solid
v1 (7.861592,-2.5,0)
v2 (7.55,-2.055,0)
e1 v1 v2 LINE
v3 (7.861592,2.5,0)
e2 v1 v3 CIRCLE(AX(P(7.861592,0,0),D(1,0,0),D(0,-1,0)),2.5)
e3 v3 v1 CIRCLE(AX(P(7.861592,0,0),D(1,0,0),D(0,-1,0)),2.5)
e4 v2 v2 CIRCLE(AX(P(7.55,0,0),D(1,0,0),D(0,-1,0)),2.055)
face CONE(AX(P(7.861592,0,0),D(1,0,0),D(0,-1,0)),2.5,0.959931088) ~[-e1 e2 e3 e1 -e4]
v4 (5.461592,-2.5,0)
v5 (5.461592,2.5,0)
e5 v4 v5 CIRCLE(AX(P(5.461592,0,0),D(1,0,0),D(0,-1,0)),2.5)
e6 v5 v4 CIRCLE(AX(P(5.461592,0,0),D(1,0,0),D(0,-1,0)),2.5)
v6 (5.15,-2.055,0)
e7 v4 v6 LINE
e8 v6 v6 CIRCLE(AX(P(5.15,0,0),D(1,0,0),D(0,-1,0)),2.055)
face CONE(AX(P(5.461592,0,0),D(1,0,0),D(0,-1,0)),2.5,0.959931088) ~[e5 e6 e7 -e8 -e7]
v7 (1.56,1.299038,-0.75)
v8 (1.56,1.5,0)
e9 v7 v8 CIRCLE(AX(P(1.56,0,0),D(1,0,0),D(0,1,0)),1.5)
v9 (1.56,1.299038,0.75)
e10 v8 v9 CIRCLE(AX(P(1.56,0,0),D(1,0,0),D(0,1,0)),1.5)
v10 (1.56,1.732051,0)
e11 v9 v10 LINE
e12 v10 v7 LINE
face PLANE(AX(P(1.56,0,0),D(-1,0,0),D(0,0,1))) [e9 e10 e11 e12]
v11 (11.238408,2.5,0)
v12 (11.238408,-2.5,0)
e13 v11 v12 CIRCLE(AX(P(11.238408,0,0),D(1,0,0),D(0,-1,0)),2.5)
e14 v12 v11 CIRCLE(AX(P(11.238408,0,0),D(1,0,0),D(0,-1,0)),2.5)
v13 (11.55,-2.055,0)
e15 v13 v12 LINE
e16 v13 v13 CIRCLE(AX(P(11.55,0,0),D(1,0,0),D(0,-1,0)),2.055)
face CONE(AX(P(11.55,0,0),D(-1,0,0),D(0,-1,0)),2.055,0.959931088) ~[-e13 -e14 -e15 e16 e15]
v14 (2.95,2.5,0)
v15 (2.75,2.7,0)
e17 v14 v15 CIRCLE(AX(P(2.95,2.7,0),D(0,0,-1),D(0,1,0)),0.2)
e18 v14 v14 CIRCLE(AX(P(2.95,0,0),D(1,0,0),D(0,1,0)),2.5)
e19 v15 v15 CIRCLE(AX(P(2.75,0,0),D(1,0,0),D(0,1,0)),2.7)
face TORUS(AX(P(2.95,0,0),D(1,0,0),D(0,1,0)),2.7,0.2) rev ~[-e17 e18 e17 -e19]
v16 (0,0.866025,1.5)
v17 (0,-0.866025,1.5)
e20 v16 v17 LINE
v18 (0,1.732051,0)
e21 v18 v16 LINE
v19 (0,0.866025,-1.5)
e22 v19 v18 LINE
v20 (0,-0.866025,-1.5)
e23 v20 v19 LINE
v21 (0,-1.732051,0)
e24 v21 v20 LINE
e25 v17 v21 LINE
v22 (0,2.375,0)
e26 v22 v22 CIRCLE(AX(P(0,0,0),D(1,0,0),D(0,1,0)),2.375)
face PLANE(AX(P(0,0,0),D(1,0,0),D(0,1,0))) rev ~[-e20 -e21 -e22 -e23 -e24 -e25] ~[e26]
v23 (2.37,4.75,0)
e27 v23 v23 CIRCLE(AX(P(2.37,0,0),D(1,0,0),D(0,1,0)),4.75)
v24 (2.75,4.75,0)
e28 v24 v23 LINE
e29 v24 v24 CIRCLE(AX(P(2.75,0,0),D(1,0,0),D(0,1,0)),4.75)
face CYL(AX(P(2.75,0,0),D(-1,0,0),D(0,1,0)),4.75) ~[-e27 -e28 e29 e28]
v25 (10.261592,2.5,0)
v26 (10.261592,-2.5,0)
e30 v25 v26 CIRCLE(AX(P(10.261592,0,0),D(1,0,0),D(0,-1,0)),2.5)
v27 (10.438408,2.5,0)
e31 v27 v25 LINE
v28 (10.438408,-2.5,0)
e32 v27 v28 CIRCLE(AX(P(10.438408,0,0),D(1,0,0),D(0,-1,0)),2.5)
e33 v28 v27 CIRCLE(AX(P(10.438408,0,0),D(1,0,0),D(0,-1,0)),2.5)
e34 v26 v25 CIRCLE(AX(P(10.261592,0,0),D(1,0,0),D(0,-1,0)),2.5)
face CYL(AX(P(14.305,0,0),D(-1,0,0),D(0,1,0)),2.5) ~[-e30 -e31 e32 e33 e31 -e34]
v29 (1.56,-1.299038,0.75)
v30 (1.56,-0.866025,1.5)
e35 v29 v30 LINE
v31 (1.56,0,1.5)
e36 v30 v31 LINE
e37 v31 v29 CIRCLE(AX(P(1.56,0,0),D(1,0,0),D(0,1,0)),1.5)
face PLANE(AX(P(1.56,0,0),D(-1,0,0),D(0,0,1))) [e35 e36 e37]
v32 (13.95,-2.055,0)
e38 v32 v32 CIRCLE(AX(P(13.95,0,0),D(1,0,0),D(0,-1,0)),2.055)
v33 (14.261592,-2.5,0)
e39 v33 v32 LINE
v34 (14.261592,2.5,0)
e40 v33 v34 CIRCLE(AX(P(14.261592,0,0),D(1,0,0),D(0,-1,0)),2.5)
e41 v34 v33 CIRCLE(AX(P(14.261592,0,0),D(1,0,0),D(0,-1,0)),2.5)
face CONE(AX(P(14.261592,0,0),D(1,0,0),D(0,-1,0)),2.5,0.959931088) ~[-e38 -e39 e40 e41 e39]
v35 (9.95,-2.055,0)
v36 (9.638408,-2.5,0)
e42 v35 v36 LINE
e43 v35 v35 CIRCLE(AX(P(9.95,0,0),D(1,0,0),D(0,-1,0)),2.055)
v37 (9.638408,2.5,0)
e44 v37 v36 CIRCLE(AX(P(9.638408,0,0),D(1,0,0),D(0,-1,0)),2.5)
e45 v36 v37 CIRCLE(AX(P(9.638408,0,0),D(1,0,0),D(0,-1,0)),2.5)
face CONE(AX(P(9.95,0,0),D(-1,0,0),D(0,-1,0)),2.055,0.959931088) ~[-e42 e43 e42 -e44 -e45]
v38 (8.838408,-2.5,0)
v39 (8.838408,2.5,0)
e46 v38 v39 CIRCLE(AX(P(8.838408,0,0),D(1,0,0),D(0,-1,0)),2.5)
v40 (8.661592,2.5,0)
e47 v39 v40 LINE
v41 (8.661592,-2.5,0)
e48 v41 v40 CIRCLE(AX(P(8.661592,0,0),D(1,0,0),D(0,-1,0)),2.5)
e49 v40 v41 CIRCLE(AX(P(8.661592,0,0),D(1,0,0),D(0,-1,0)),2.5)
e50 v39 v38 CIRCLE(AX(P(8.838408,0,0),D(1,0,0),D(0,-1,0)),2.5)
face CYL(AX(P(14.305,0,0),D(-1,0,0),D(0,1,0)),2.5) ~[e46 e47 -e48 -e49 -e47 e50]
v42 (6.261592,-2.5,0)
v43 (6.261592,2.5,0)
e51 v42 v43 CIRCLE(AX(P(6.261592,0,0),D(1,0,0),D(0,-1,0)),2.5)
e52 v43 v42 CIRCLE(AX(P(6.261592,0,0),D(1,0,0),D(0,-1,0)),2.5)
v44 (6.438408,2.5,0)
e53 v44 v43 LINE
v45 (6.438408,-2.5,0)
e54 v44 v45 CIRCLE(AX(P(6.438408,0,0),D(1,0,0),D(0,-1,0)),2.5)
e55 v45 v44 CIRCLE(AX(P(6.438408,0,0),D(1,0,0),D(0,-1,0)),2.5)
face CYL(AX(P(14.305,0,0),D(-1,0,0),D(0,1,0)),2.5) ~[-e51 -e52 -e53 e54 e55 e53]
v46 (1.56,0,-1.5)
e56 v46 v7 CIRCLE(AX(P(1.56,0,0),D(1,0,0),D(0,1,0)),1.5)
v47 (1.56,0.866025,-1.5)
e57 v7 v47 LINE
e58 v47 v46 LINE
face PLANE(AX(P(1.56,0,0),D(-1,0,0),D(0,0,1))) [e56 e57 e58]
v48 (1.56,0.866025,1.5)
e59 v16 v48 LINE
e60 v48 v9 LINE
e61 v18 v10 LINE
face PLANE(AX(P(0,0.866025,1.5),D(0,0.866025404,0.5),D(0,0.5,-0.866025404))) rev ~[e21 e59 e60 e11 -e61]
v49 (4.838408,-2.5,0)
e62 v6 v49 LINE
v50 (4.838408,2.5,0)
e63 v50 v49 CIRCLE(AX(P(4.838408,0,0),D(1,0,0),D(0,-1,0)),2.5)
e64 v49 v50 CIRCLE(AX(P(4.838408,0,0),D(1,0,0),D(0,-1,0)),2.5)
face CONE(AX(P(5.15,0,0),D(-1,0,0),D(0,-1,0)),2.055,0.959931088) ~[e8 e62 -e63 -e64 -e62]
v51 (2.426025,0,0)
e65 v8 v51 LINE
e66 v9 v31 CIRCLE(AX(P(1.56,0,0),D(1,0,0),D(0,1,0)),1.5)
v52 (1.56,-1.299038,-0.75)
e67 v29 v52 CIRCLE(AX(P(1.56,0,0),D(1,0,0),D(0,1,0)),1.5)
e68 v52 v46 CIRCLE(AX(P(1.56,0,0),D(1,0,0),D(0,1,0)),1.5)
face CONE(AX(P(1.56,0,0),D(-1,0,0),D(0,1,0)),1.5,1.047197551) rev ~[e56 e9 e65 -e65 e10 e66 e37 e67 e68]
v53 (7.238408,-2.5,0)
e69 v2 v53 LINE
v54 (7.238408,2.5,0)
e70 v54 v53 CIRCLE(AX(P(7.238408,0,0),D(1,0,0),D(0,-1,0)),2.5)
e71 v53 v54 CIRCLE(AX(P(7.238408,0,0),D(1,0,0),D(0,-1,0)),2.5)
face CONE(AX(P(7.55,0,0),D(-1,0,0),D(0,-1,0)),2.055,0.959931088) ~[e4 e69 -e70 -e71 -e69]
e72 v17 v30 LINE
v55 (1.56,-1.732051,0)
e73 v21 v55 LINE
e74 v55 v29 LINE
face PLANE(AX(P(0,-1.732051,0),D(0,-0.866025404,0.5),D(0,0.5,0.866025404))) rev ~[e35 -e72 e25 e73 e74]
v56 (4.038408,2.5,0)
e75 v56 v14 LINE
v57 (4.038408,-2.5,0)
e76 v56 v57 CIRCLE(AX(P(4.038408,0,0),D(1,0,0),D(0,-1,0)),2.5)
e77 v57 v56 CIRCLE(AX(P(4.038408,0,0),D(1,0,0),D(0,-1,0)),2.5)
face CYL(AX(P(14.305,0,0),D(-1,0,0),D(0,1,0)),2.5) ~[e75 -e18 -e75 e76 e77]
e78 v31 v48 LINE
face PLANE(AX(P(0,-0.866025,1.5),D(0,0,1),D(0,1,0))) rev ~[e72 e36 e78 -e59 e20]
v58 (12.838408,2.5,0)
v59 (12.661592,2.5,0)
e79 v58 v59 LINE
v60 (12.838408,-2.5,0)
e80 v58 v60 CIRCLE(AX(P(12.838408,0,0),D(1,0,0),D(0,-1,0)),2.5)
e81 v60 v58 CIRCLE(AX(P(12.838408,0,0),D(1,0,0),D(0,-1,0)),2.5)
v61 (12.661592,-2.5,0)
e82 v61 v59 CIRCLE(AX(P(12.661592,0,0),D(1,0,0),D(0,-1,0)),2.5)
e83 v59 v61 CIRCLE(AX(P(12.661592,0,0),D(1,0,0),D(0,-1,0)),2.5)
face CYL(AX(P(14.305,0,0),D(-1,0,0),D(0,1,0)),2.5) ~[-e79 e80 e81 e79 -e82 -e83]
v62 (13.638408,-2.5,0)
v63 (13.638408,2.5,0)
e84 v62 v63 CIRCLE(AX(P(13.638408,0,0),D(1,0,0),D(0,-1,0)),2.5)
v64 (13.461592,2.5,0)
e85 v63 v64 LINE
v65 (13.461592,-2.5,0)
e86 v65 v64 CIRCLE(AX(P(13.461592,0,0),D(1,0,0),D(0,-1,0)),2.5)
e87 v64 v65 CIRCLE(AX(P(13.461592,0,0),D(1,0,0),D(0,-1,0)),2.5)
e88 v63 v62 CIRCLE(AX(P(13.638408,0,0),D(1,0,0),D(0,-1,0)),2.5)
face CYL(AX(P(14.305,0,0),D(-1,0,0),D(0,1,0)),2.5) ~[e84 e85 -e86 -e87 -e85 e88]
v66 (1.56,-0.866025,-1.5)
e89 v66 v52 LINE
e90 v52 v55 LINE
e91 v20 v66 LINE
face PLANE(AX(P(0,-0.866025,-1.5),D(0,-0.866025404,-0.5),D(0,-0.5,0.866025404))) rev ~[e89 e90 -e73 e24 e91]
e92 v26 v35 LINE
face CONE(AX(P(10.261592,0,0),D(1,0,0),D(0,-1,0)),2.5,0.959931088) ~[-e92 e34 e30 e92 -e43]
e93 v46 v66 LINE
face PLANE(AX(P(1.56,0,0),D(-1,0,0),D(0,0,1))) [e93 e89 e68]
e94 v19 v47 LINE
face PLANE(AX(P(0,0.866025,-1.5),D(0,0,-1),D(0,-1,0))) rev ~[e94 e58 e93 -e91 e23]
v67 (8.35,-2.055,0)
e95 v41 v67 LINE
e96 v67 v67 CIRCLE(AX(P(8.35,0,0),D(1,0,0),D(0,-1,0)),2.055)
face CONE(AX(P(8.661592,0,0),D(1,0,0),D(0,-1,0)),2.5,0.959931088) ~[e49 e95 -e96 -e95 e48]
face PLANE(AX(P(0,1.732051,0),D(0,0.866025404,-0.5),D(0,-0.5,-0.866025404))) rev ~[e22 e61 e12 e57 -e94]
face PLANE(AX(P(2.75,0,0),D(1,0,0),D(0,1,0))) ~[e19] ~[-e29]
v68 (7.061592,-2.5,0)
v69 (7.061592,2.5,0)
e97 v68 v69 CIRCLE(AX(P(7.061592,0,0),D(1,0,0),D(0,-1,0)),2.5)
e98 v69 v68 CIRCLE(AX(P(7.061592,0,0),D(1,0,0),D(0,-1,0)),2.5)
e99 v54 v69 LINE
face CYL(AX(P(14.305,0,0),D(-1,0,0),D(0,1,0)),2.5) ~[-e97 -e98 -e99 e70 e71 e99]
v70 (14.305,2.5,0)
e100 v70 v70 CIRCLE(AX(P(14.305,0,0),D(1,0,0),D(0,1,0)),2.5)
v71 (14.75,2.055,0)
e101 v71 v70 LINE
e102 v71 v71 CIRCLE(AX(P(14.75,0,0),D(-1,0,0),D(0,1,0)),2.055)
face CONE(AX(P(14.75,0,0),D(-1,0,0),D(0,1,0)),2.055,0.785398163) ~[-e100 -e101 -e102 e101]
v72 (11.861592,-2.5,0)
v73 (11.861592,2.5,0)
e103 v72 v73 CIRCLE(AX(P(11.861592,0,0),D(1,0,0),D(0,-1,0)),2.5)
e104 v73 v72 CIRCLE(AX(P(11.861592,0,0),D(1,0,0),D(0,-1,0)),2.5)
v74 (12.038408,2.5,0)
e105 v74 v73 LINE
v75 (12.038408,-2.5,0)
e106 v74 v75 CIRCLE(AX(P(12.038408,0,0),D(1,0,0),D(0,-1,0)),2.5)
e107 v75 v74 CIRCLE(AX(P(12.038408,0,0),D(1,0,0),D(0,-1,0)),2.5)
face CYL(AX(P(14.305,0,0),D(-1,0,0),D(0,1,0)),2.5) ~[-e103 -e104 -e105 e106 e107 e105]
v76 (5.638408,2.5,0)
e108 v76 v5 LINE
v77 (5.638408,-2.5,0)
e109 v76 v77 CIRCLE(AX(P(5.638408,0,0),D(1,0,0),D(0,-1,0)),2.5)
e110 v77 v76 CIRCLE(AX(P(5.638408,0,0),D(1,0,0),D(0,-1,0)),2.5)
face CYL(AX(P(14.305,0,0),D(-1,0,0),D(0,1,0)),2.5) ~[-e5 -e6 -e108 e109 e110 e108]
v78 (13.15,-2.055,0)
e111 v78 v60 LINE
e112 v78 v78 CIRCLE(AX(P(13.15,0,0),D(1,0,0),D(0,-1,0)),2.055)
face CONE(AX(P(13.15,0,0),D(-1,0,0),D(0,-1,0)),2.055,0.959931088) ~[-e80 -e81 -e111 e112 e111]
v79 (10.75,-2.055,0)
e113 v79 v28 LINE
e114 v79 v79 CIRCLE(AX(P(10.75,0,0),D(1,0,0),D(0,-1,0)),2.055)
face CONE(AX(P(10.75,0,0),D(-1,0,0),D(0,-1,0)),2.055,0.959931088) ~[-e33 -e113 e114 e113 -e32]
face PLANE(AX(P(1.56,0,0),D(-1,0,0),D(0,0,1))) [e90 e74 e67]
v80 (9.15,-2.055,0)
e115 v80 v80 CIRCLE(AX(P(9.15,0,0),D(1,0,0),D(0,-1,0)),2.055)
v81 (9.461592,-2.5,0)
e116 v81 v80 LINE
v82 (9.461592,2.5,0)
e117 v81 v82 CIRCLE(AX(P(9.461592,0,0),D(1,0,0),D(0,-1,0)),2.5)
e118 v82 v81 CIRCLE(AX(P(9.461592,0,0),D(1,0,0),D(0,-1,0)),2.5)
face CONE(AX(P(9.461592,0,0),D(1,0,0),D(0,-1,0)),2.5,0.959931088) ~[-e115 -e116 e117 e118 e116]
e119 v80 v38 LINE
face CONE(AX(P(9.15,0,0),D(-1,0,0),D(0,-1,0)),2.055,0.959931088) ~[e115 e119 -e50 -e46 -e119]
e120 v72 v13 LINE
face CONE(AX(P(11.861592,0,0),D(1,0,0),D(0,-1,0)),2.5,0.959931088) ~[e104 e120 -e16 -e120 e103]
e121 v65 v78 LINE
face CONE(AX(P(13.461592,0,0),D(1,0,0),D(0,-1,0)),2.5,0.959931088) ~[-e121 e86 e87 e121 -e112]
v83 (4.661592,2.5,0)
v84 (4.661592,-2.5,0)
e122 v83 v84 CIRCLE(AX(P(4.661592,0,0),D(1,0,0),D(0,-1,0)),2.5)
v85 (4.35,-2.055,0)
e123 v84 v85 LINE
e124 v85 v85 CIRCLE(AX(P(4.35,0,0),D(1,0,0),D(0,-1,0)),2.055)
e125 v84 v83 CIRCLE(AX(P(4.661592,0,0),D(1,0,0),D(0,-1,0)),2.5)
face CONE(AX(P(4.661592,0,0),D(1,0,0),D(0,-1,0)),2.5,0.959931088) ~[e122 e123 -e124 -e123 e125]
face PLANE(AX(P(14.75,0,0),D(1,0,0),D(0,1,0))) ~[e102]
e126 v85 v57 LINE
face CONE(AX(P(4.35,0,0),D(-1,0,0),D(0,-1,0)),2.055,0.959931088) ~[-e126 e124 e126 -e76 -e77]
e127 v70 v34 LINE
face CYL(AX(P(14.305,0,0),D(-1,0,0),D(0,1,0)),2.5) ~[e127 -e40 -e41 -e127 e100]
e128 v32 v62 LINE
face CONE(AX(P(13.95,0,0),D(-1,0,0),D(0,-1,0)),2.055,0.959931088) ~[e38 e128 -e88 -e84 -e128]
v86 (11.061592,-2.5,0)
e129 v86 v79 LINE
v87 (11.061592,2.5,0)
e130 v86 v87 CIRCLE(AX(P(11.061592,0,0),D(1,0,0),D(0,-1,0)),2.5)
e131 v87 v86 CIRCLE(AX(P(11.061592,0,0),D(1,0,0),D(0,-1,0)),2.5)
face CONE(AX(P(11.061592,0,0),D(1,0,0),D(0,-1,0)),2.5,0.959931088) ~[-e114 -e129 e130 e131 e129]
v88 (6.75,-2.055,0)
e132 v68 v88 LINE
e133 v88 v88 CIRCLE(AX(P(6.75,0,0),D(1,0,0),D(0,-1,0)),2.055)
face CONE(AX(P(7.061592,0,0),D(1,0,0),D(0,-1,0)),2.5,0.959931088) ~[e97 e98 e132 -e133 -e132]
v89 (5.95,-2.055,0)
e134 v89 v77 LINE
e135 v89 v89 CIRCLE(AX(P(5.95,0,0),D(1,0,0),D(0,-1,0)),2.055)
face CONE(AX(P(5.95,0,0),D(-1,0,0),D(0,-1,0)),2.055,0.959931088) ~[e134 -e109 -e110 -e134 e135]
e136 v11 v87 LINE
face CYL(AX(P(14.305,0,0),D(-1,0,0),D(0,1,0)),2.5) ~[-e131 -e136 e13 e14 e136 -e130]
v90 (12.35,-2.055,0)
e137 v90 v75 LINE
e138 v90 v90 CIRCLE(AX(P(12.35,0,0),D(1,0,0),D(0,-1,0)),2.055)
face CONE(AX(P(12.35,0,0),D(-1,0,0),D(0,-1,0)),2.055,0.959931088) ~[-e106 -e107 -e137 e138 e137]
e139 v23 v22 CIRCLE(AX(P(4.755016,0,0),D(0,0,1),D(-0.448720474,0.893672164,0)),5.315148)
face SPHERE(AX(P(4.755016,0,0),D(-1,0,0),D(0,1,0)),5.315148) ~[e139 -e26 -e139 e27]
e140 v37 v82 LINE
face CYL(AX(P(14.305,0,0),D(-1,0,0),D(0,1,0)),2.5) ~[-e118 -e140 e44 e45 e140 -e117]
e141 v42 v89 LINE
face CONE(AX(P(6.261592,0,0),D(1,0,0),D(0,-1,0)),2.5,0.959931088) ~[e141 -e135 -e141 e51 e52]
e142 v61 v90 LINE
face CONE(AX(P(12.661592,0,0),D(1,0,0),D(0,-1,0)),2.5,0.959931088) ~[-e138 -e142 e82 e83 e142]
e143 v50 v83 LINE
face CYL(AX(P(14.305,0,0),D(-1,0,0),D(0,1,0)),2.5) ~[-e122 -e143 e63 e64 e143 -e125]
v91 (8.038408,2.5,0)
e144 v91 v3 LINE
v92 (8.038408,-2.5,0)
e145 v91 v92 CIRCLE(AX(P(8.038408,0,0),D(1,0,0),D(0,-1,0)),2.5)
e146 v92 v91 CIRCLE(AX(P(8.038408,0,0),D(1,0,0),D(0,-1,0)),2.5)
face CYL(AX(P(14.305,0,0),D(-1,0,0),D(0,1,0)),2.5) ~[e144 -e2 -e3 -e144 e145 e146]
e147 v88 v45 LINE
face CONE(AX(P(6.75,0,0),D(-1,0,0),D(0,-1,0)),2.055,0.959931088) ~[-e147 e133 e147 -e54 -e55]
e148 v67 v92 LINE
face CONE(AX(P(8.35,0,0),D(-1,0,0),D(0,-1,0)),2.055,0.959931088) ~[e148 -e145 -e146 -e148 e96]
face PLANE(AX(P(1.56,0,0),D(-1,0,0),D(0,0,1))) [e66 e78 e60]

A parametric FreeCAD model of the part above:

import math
import FreeCAD as App
import Part
import Sketcher
from FreeCAD import Vector
Q = App.Units.Quantity


def edges_at(feature, points):
    """Names of the edges that pass closest to the given points."""
    edges = feature.Shape.Edges
    near = lambda p: min(range(len(edges)), key=lambda i: edges[i].distToShape(Part.Vertex(*p))[0])
    return sorted({f"Edge{near(p) + 1}" for p in points})


def add_polygon(sketch, points):
    """Adds a closed chain of lines whose ends are joined by coincident constraints."""
    first, n = sketch.GeometryCount, len(points)
    for a, b in zip(points, points[1:] + points[:1]):
        sketch.addGeometry(Part.LineSegment(App.Vector(*a, 0), App.Vector(*b, 0)), False)
    for i in range(n):
        sketch.addConstraint(Sketcher.Constraint("Coincident", first + i, 2, first + (i + 1) % n, 1))

doc = App.newDocument("Part")
body = doc.addObject("PartDesign::Body", "Body")

sketch1 = body.newObject("Sketcher::SketchObject", "Sketch")
sketch1.AttachmentSupport = (doc.getObject("XY_Plane"), [""])
sketch1.MapMode = "FlatFace"
sketch1.addGeometry(Part.LineSegment(Vector(14.75, 0, 0), Vector(14.75, 2.06, 0)), False)
sketch1.addGeometry(Part.LineSegment(Vector(14.75, 2.06, 0), Vector(14.3, 2.5, 0)), False)
sketch1.addGeometry(Part.LineSegment(Vector(14.3, 2.5, 0), Vector(2.75, 2.5, 0)), False)
sketch1.addGeometry(Part.LineSegment(Vector(2.75, 2.5, 0), Vector(2.75, 4.75, 0)), False)
sketch1.addGeometry(Part.LineSegment(Vector(2.75, 4.75, 0), Vector(2.37, 4.75, 0)), False)
sketch1.addGeometry(Part.ArcOfCircle(Part.Circle(Vector(4.76, 0, 0), Vector(0, 0, 1), 5.32), math.radians(117), math.radians(153)), False)
sketch1.addGeometry(Part.LineSegment(Vector(0, 2.38, 0), Vector(0, 0, 0)), False)
sketch1.addGeometry(Part.LineSegment(Vector(0, 0, 0), Vector(14.75, 0, 0)), False)
sketch1.addConstraint(Sketcher.Constraint("Coincident", 0, 2, 1, 1))
sketch1.addConstraint(Sketcher.Constraint("Coincident", 1, 2, 2, 1))
sketch1.addConstraint(Sketcher.Constraint("Coincident", 2, 2, 3, 1))
sketch1.addConstraint(Sketcher.Constraint("Coincident", 3, 2, 4, 1))
sketch1.addConstraint(Sketcher.Constraint("Coincident", 4, 2, 5, 1))
sketch1.addConstraint(Sketcher.Constraint("Coincident", 5, 2, 6, 1))
sketch1.addConstraint(Sketcher.Constraint("Coincident", 6, 2, 7, 1))
sketch1.addConstraint(Sketcher.Constraint("Coincident", 7, 2, 0, 1))
sketch1.addConstraint(Sketcher.Constraint("Vertical", 0))
sketch1.addConstraint(Sketcher.Constraint("Horizontal", 2))
sketch1.addConstraint(Sketcher.Constraint("Vertical", 3))
sketch1.addConstraint(Sketcher.Constraint("Horizontal", 4))
sketch1.addConstraint(Sketcher.Constraint("Vertical", 6))
sketch1.addConstraint(Sketcher.Constraint("Horizontal", 7))
sketch1.addConstraint(Sketcher.Constraint("Coincident", 6, 2, -1, 1))
sketch1.addConstraint(Sketcher.Constraint("PointOnObject", 5, 3, -1))
sketch1.addConstraint(Sketcher.Constraint("Angle", 1, Q("135 deg")))
sketch1.addConstraint(Sketcher.Constraint("DistanceX", 2, 2, 0, 2, 12.0))
sketch1.addConstraint(Sketcher.Constraint("DistanceX", 4, 2, 4, 1, 0.38))
sketch1.addConstraint(Sketcher.Constraint("DistanceX", 7, 1, 7, 2, 14.75))
sketch1.addConstraint(Sketcher.Constraint("DistanceY", 3, 1, 3, 2, 2.25))
sketch1.addConstraint(Sketcher.Constraint("DistanceY", -1, 1, 1, 2, 2.5))
sketch1.addConstraint(Sketcher.Constraint("DistanceX", 2, 2, 2, 1, 11.555))
sketch1.addConstraint(Sketcher.Constraint("DistanceY", 6, 2, 6, 1, 2.375))
revolution = body.newObject("PartDesign::Revolution", "Revolution")
revolution.Profile = sketch1
revolution.ReferenceAxis = (sketch1, ["H_Axis"])
revolution.Angle = 360
doc.recompute()

fillet = body.newObject("PartDesign::Fillet", "Fillet")
fillet.Base = (revolution, edges_at(revolution, [(2.75, -2.5, 0)]))
fillet.Radius = 0.2

sketch2 = body.newObject("Sketcher::SketchObject", "Sketch001")
sketch2.AttachmentSupport = (doc.getObject("XY_Plane"), [""])
sketch2.MapMode = "FlatFace"
add_polygon(sketch2, [(1.6, 1.5), (0, 1.5), (0, 0), (2.4, 0)])
sketch2.addConstraint(Sketcher.Constraint("Horizontal", 0))
sketch2.addConstraint(Sketcher.Constraint("Vertical", 1))
sketch2.addConstraint(Sketcher.Constraint("Horizontal", 2))
sketch2.addConstraint(Sketcher.Constraint("Coincident", 1, 2, -1, 1))
sketch2.addConstraint(Sketcher.Constraint("Angle", 3, Q("120 deg")))
sketch2.addConstraint(Sketcher.Constraint("DistanceY", 1, 2, 1, 1, 1.5))
sketch2.addConstraint(Sketcher.Constraint("DistanceX", 0, 2, 0, 1, 1.56))
groove = body.newObject("PartDesign::Groove", "Groove")
groove.Profile = sketch2
groove.ReferenceAxis = (sketch2, ["H_Axis"])
groove.Angle = 360

sketch3 = body.newObject("Sketcher::SketchObject", "Sketch002")
sketch3.AttachmentSupport = (doc.getObject("YZ_Plane"), [""])
sketch3.MapMode = "FlatFace"
add_polygon(sketch3, [(0.9, 1.5), (-0.9, 1.5), (-1.7, 0), (-0.9, -1.5), (0.9, -1.5), (1.7, 0)])
sketch3.addConstraint(Sketcher.Constraint("Horizontal", 0))
sketch3.addConstraint(Sketcher.Constraint("Horizontal", 3))
sketch3.addConstraint(Sketcher.Constraint("Symmetric", 0, 2, 3, 2, -1, 1))
sketch3.addConstraint(Sketcher.Constraint("Symmetric", 1, 2, 4, 2, -1, 1))
sketch3.addConstraint(Sketcher.Constraint("PointOnObject", 1, 2, -1))
sketch3.addConstraint(Sketcher.Constraint("Parallel", 2, 5))
sketch3.addConstraint(Sketcher.Constraint("Vertical", 0, 2, 2, 2))
sketch3.addConstraint(Sketcher.Constraint("Angle", 1, Q("-120 deg")))
sketch3.addConstraint(Sketcher.Constraint("DistanceY", 2, 2, 0, 2, 3.0))
sketch3.addConstraint(Sketcher.Constraint("DistanceX", 0, 2, 0, 1, 1.732051))
pocket1 = body.newObject("PartDesign::Pocket", "Pocket")
pocket1.Profile = sketch3
pocket1.Length = 1.56
pocket1.Reversed = True

sketch4 = body.newObject("Sketcher::SketchObject", "Sketch003")
sketch4.AttachmentSupport = (doc.getObject("XY_Plane"), [""])
sketch4.MapMode = "FlatFace"
add_polygon(sketch4, [(4.3, -2.1), (4, -2.5), (4, -3.1), (4.7, -3.1), (4.7, -2.5)])
sketch4.addConstraint(Sketcher.Constraint("Vertical", 1))
sketch4.addConstraint(Sketcher.Constraint("Horizontal", 2))
sketch4.addConstraint(Sketcher.Constraint("Vertical", 3))
sketch4.addConstraint(Sketcher.Constraint("Horizontal", 0, 2, 3, 2))
sketch4.addConstraint(Sketcher.Constraint("Equal", 0, 4))
sketch4.addConstraint(Sketcher.Constraint("Angle", 0, Q("-125 deg")))
sketch4.addConstraint(Sketcher.Constraint("DistanceY", 0, 2, -1, 1, 2.5))
sketch4.addConstraint(Sketcher.Constraint("DistanceY", 1, 2, 1, 1, 0.625))
sketch4.addConstraint(Sketcher.Constraint("DistanceX", -1, 1, 4, 2, 4.35))
sketch4.addConstraint(Sketcher.Constraint("DistanceY", 1, 2, 4, 2, 1.07))
groove2 = body.newObject("PartDesign::Groove", "Groove001")
groove2.Profile = sketch4
groove2.ReferenceAxis = (sketch4, ["H_Axis"])
groove2.Angle = 360
doc.recompute()

linearpattern = body.newObject("PartDesign::LinearPattern", "LinearPattern")
linearpattern.Originals = [groove2]
linearpattern.Direction = (doc.getObject("X_Axis"), [""])
linearpattern.Mode = "offset"
linearpattern.Offset = 0.8
linearpattern.Occurrences = 14
body.Tip = linearpattern

doc.recompute()
